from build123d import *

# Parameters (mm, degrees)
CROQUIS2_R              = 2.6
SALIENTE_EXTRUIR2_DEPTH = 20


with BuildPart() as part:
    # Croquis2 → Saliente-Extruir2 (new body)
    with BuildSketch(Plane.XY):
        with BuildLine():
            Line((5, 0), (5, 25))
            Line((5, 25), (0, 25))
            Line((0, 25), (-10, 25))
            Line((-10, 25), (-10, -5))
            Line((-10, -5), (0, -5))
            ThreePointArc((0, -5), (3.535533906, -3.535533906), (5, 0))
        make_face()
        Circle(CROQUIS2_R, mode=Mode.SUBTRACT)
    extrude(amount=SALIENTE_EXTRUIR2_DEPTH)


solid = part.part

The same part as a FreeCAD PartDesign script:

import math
import FreeCAD as App
import Part
import Sketcher

V = App.Vector

doc = App.newDocument("Part")
body = doc.addObject("PartDesign::Body", "Body")

# Sketch on XY plane
sketch1 = body.newObject("Sketcher::SketchObject", "Sketch")
sketch1.AttachmentSupport = (doc.getObject("XY_Plane"), [""])
sketch1.MapMode = "FlatFace"
sketch1.addGeometry([
    Part.LineSegment(V(5, 0, 0), V(5, 25, 0)),  # 0
    Part.LineSegment(V(5, 25, 0), V(-10, 25, 0)),  # 1
    Part.LineSegment(V(-10, 25, 0), V(-10, -5, 0)),  # 2
    Part.LineSegment(V(-10, -5, 0), V(0, -5, 0)),  # 3
    Part.ArcOfCircle(Part.Circle(V(0, 0, 0), V(0, 0, 1), 5), math.radians(-90), math.radians(0)),  # 4
    Part.Circle(V(0, 0, 0), V(0, 0, 1), 2.6),  # 5
], False)
sketch1.addConstraint([
    Sketcher.Constraint("Coincident", 0, 2, 1, 1),
    Sketcher.Constraint("Coincident", 1, 2, 2, 1),
    Sketcher.Constraint("Coincident", 2, 2, 3, 1),
    Sketcher.Constraint("Tangent", 3, 2, 4, 1),
    Sketcher.Constraint("Tangent", 4, 2, 0, 1),
    Sketcher.Constraint("Vertical", 0),
    Sketcher.Constraint("Horizontal", 1),
    Sketcher.Constraint("Vertical", 2),
    Sketcher.Constraint("Horizontal", 3),
    Sketcher.Constraint("Coincident", 4, 3, -1, 1),
    Sketcher.Constraint("Coincident", 5, 3, -1, 1),
    Sketcher.Constraint("Radius", 4, 5.0),
    Sketcher.Constraint("Diameter", 5, 5.2),
    Sketcher.Constraint("DistanceX", 1, 2, 1, 1, 15.0),
    Sketcher.Constraint("DistanceY", 0, 1, 0, 2, 25.0),
])
pad1 = body.newObject("PartDesign::Pad", "Pad")
pad1.Profile = sketch1
pad1.Length = 20

doc.recompute()
